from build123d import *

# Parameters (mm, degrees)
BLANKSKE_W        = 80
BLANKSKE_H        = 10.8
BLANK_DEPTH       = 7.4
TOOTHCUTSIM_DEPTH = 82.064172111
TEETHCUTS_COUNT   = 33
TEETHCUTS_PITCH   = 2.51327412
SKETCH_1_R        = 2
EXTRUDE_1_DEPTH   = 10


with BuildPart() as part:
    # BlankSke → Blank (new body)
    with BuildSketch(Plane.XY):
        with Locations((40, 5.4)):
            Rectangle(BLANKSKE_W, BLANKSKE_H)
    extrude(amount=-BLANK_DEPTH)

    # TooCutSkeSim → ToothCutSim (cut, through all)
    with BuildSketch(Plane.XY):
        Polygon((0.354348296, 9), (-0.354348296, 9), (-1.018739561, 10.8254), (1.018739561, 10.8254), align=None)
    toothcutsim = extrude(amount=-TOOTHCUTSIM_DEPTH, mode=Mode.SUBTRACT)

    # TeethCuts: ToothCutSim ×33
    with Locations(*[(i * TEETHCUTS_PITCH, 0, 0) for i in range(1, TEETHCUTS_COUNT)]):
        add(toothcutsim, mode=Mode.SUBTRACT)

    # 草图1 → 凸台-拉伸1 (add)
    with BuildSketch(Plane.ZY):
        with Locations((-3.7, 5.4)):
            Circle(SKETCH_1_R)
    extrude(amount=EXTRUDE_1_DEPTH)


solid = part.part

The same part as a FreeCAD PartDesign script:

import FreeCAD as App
import Part
import Sketcher

V = App.Vector
Q = App.Units.Quantity

doc = App.newDocument("Part")
body = doc.addObject("PartDesign::Body", "Body")

sketch1 = body.newObject("Sketcher::SketchObject", "Sketch")
sketch1.AttachmentSupport = (doc.getObject("XY_Plane"), [""])
sketch1.MapMode = "FlatFace"
sketch1.addGeometry(Part.LineSegment(V(0, 11, 0), V(0, 0, 0)), False)
sketch1.addGeometry(Part.LineSegment(V(0, 0, 0), V(80, 0, 0)), False)
sketch1.addGeometry(Part.LineSegment(V(80, 0, 0), V(80, 11, 0)), False)
sketch1.addGeometry(Part.LineSegment(V(80, 11, 0), V(0, 11, 0)), False)
sketch1.addConstraint(Sketcher.Constraint("Coincident", 0, 2, 1, 1))
sketch1.addConstraint(Sketcher.Constraint("Coincident", 1, 2, 2, 1))
sketch1.addConstraint(Sketcher.Constraint("Coincident", 2, 2, 3, 1))
sketch1.addConstraint(Sketcher.Constraint("Coincident", 3, 2, 0, 1))
sketch1.addConstraint(Sketcher.Constraint("Vertical", 0))
sketch1.addConstraint(Sketcher.Constraint("Horizontal", 1))
sketch1.addConstraint(Sketcher.Constraint("Vertical", 2))
sketch1.addConstraint(Sketcher.Constraint("Horizontal", 3))
sketch1.addConstraint(Sketcher.Constraint("Coincident", 0, 2, -1, 1))
sketch1.addConstraint(Sketcher.Constraint("DistanceX", 1, 1, 1, 2, 80.0))
sketch1.addConstraint(Sketcher.Constraint("DistanceY", 0, 2, 0, 1, 10.8))
pad1 = body.newObject("PartDesign::Pad", "Pad")
pad1.Profile = sketch1
pad1.Length = 7.4
pad1.Reversed = True

sketch2 = body.newObject("Sketcher::SketchObject", "Sketch001")
sketch2.AttachmentSupport = (doc.getObject("XY_Plane"), [""])
sketch2.MapMode = "FlatFace"
sketch2.addGeometry(Part.LineSegment(V(-0.4, 9, 0), V(0.4, 9, 0)), False)
sketch2.addGeometry(Part.LineSegment(V(0.4, 9, 0), V(1, 10.8, 0)), False)
sketch2.addGeometry(Part.LineSegment(V(1, 10.8, 0), V(-1, 10.8, 0)), False)
sketch2.addGeometry(Part.LineSegment(V(-1, 10.8, 0), V(-0.4, 9, 0)), False)
sketch2.addConstraint(Sketcher.Constraint("Coincident", 0, 2, 1, 1))
sketch2.addConstraint(Sketcher.Constraint("Coincident", 1, 2, 2, 1))
sketch2.addConstraint(Sketcher.Constraint("Coincident", 2, 2, 3, 1))
sketch2.addConstraint(Sketcher.Constraint("Coincident", 3, 2, 0, 1))
sketch2.addConstraint(Sketcher.Constraint("Horizontal", 0))
sketch2.addConstraint(Sketcher.Constraint("Horizontal", 2))
sketch2.addConstraint(Sketcher.Constraint("Equal", 1, 3))
sketch2.addConstraint(Sketcher.Constraint("Angle", 1, Q("70 deg")))
sketch2.addConstraint(Sketcher.Constraint("DistanceY", -1, 1, 0, 2, 9.0))
sketch2.addConstraint(Sketcher.Constraint("DistanceX", 2, 2, 2, 1, 2.037479))
sketch2.addConstraint(Sketcher.Constraint("DistanceY", -1, 1, 1, 2, 10.8254))
sketch2.addConstraint(Sketcher.Constraint("DistanceX", -1, 1, 0, 2, 0.354348))
pocket1 = body.newObject("PartDesign::Pocket", "Pocket")
pocket1.Profile = sketch2
pocket1.Type = "ThroughAll"
doc.recompute()

linearpattern = body.newObject("PartDesign::LinearPattern", "LinearPattern")
linearpattern.Originals = [pocket1]
linearpattern.Direction = (doc.getObject("X_Axis"), [""])
linearpattern.Mode = "offset"
linearpattern.Offset = 2.513274
linearpattern.Occurrences = 33
body.Tip = linearpattern

sketch3 = body.newObject("Sketcher::SketchObject", "Sketch002")
sketch3.AttachmentSupport = (doc.getObject("YZ_Plane"), [""])
sketch3.MapMode = "FlatFace"
sketch3.addGeometry(Part.Circle(V(5.4, -3.7, 0), V(0, 0, 1), 2), False)
sketch3.addConstraint(Sketcher.Constraint("Diameter", 0, 4.0))
sketch3.addConstraint(Sketcher.Constraint("DistanceX", -1, 1, 0, 3, 5.4))
sketch3.addConstraint(Sketcher.Constraint("DistanceY", 0, 3, -1, 1, 3.7))
pad2 = body.newObject("PartDesign::Pad", "Pad001")
pad2.Profile = sketch3
pad2.Length = 10
pad2.Reversed = True

doc.recompute()
